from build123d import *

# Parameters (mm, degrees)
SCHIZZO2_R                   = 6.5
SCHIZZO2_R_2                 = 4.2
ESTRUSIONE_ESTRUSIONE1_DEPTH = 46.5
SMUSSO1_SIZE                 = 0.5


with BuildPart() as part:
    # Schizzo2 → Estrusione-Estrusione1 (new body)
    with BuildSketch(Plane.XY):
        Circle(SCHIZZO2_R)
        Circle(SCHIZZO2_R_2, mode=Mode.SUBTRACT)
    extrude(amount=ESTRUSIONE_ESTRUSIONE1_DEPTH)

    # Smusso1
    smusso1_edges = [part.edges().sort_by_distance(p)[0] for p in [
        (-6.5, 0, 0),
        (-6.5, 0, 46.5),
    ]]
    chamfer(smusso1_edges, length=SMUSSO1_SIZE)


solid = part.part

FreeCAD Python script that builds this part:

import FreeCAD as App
import Part
import Sketcher
Q = App.Units.Quantity


def edges_at(feature, points):
    """Names of the edges that pass closest to the given points."""
    edges = feature.Shape.Edges
    near = lambda p: min(range(len(edges)), key=lambda i: edges[i].distToShape(Part.Vertex(*p))[0])
    return sorted({f"Edge{near(p) + 1}" for p in points})

doc = App.newDocument("Part")
params = doc.addObject("Spreadsheet::Sheet", "Params")
for row, (alias, value) in enumerate([
    ("sketch1_diameter", "13 mm"),
    ("sketch1_diameter2", "8.4 mm"),
    ("pad1_length", "46.5 mm"),
    ("chamfer_size", "0.5 mm"),
], start=1):
    params.set(f"A{row}", alias)
    params.set(f"B{row}", "=" + value)
    params.setAlias(f"B{row}", alias)

body = doc.addObject("PartDesign::Body", "Body")

# Sketch on XY plane
sketch1 = doc.addObject("Sketcher::SketchObject", "Sketch")
body.addObject(sketch1)
sketch1.AttachmentSupport = (doc.XY_Plane, [""])
sketch1.MapMode = "FlatFace"
sketch1.addGeometry(Part.Circle(App.Vector(0, 0, 0), App.Vector(0, 0, 1), 6.5), False)
sketch1.addGeometry(Part.Circle(App.Vector(0, 0, 0), App.Vector(0, 0, 1), 4.2), False)
sketch1.addConstraint(Sketcher.Constraint("Coincident", 0, 3, -1, 1))
sketch1.addConstraint(Sketcher.Constraint("Coincident", 1, 3, -1, 1))
sketch1.addConstraint(Sketcher.Constraint("Diameter", 0, Q("13 mm")))
sketch1.addConstraint(Sketcher.Constraint("Diameter", 1, Q("8.4 mm")))
sketch1.setExpression("Constraints[2]", "Params.sketch1_diameter")
sketch1.setExpression("Constraints[3]", "Params.sketch1_diameter2")
pad1 = doc.addObject("PartDesign::Pad", "Pad")
body.addObject(pad1)
pad1.Profile = sketch1
pad1.setExpression("Length", "Params.pad1_length")
doc.recompute()

chamfer = doc.addObject("PartDesign::Chamfer", "Chamfer")
body.addObject(chamfer)
chamfer.Base = (pad1, edges_at(pad1, [(-6.5, 0, 0), (-6.5, 0, 46.5)]))
chamfer.setExpression("Size", "Params.chamfer_size")

doc.recompute()
